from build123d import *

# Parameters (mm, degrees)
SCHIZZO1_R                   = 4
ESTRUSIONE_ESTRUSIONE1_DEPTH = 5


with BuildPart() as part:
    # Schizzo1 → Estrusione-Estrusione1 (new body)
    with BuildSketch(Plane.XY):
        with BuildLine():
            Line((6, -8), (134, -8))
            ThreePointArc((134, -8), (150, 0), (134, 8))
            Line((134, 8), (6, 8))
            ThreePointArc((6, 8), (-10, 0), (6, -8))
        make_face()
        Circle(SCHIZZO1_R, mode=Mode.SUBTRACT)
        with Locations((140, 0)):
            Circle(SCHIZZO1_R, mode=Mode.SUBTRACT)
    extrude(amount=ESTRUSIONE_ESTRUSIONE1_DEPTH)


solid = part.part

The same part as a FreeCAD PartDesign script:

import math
import FreeCAD as App
import Part
import Sketcher
from FreeCAD import Vector

doc = App.newDocument("Part")
body = doc.addObject("PartDesign::Body", "Body")

sketch1 = doc.addObject("Sketcher::SketchObject", "Sketch")
body.addObject(sketch1)
sketch1.AttachmentSupport = (doc.XY_Plane, [""])
sketch1.MapMode = "FlatFace"
sketch1.addGeometry(Part.LineSegment(Vector(6, -8, 0), Vector(134, -8, 0)), False)
sketch1.addGeometry(Part.ArcOfCircle(Part.Circle(Vector(140, 0, 0), Vector(0, 0, 1), 10), math.radians(-126.869898), math.radians(126.869898)), False)
sketch1.addGeometry(Part.LineSegment(Vector(134, 8, 0), Vector(6, 8, 0)), False)
sketch1.addGeometry(Part.ArcOfCircle(Part.Circle(Vector(0, 0, 0), Vector(0, 0, 1), 10), math.radians(53.130102), math.radians(306.869898)), False)
sketch1.addGeometry(Part.Circle(Vector(0, 0, 0), Vector(0, 0, 1), 4), False)
sketch1.addGeometry(Part.Circle(Vector(140, 0, 0), Vector(0, 0, 1), 4), False)
sketch1.addConstraint(Sketcher.Constraint("Coincident", 0, 2, 1, 1))
sketch1.addConstraint(Sketcher.Constraint("Coincident", 1, 2, 2, 1))
sketch1.addConstraint(Sketcher.Constraint("Coincident", 2, 2, 3, 1))
sketch1.addConstraint(Sketcher.Constraint("Coincident", 3, 2, 0, 1))
sketch1.addConstraint(Sketcher.Constraint("Horizontal", 0))
sketch1.addConstraint(Sketcher.Constraint("Horizontal", 2))
sketch1.addConstraint(Sketcher.Constraint("Coincident", 3, 3, -1, 1))
sketch1.addConstraint(Sketcher.Constraint("Coincident", 4, 3, -1, 1))
sketch1.addConstraint(Sketcher.Constraint("Coincident", 5, 3, 1, 3))
sketch1.addConstraint(Sketcher.Constraint("Equal", 1, 3))
sketch1.addConstraint(Sketcher.Constraint("Equal", 4, 5))
sketch1.addConstraint(Sketcher.Constraint("Symmetric", 0, 2, 1, 2, -1))
sketch1.addConstraint(Sketcher.Constraint("Diameter", 4, 8.0))
sketch1.addConstraint(Sketcher.Constraint("Radius", 1, 10.0))
sketch1.addConstraint(Sketcher.Constraint("DistanceX", 0, 1, 0, 2, 128.0))
sketch1.addConstraint(Sketcher.Constraint("DistanceX", -1, 1, 1, 3, 140.0))
pad1 = doc.addObject("PartDesign::Pad", "Pad")
body.addObject(pad1)
pad1.Profile = sketch1
pad1.Length = 5

doc.recompute()
